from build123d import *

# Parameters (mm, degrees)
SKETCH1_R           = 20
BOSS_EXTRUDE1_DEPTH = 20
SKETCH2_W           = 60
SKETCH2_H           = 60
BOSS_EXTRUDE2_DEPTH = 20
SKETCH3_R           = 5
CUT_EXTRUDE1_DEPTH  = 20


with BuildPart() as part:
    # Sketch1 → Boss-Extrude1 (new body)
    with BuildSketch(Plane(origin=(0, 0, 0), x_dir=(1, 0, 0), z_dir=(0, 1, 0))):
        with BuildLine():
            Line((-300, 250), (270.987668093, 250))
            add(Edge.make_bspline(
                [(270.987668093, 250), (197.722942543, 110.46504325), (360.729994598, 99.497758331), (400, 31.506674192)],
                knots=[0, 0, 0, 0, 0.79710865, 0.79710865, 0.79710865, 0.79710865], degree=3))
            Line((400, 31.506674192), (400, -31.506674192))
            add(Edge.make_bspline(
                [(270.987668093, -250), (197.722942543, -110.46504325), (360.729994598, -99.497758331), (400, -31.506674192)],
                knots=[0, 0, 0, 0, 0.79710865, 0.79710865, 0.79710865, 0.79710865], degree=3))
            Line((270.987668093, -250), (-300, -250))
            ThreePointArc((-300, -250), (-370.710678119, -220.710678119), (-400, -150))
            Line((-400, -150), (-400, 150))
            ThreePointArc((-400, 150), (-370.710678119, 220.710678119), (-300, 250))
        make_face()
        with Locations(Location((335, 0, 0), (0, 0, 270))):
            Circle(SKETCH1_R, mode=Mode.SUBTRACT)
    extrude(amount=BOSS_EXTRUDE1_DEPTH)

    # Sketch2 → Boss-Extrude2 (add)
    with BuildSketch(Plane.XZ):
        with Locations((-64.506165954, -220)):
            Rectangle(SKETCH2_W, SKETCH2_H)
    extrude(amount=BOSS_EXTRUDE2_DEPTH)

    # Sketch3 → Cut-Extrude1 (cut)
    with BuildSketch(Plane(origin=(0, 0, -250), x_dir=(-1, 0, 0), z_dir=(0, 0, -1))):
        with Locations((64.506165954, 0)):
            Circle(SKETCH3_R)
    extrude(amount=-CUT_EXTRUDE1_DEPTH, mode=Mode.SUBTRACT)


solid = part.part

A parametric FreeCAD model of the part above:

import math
import FreeCAD as App
import Part
import Sketcher

doc = App.newDocument("Part")
body = doc.addObject("PartDesign::Body", "Body")

# Sketch on XZ plane
sketch1 = body.newObject("Sketcher::SketchObject", "Sketch")
sketch1.AttachmentSupport = (doc.getObject("XZ_Plane"), [""])
sketch1.MapMode = "FlatFace"
sketch1.addGeometry([
    Part.LineSegment(App.Vector(270.987668, -250, 0), App.Vector(-300, -250, 0)),  # 0
    Part.ArcOfCircle(Part.Circle(App.Vector(-300, -150, 0), App.Vector(0, 0, 1), 100), math.radians(180), math.radians(270)),  # 1
    Part.LineSegment(App.Vector(-400, -150, 0), App.Vector(-400, 150, 0)),  # 2
    Part.ArcOfCircle(Part.Circle(App.Vector(-300, 150, 0), App.Vector(0, 0, 1), 100), math.radians(90), math.radians(180)),  # 3
    Part.LineSegment(App.Vector(-300, 250, 0), App.Vector(270.987668, 250, 0)),  # 4
    Part.BSplineCurve([App.Vector(270.987668, 250, 0), App.Vector(197.722943, 110.465043, 0), App.Vector(360.729995, 99.497758, 0), App.Vector(400, 31.506674, 0)], [4, 4], [0, 0.79710865], False, 3, [1, 1, 1, 1], False),  # 5
    Part.LineSegment(App.Vector(400, 31.506674, 0), App.Vector(400, -31.506674, 0)),  # 6
    Part.BSplineCurve([App.Vector(270.987668, -250, 0), App.Vector(197.722943, -110.465043, 0), App.Vector(360.729995, -99.497758, 0), App.Vector(400, -31.506674, 0)], [4, 4], [0, 0.79710865], False, 3, [1, 1, 1, 1], False),  # 7
    Part.Circle(App.Vector(335, 0, 0), App.Vector(0, 0, 1), 20),  # 8
], False)
sketch1.addConstraint([
    Sketcher.Constraint("Block", 5),
    Sketcher.Constraint("Block", 7),
    Sketcher.Constraint("Tangent", 0, 2, 1, 2),
    Sketcher.Constraint("Tangent", 1, 1, 2, 1),
    Sketcher.Constraint("Tangent", 2, 2, 3, 2),
    Sketcher.Constraint("Tangent", 3, 1, 4, 1),
    Sketcher.Constraint("Coincident", 4, 2, 5, 1),
    Sketcher.Constraint("Coincident", 5, 2, 6, 1),
    Sketcher.Constraint("Coincident", 6, 2, 7, 2),
    Sketcher.Constraint("Coincident", 7, 1, 0, 1),
    Sketcher.Constraint("Horizontal", 0),
    Sketcher.Constraint("Vertical", 2),
    Sketcher.Constraint("Horizontal", 4),
    Sketcher.Constraint("Equal", 1, 3),
    Sketcher.Constraint("PointOnObject", 8, 3, -1),
    Sketcher.Constraint("Diameter", 8, 40.0),
    Sketcher.Constraint("Radius", 1, 100.0),
    Sketcher.Constraint("DistanceX", 1, 3, -1, 1, 300.0),
    Sketcher.Constraint("DistanceX", -1, 1, 8, 3, 335.0),
])
pad1 = body.newObject("PartDesign::Pad", "Pad")
pad1.Profile = sketch1
pad1.Length = 20
pad1.Reversed = True

# Sketch on XZ plane
sketch2 = body.newObject("Sketcher::SketchObject", "Sketch001")
sketch2.AttachmentSupport = (doc.getObject("XZ_Plane"), [""])
sketch2.MapMode = "FlatFace"
sketch2.addGeometry([
    Part.LineSegment(App.Vector(-95, -190, 0), App.Vector(-95, -250, 0)),
    Part.LineSegment(App.Vector(-95, -250, 0), App.Vector(-35, -250, 0)),
    Part.LineSegment(App.Vector(-35, -250, 0), App.Vector(-35, -190, 0)),
    Part.LineSegment(App.Vector(-35, -190, 0), App.Vector(-95, -190, 0)),
], False)
sketch2.addConstraint([
    Sketcher.Constraint("Coincident", 0, 2, 1, 1),
    Sketcher.Constraint("Coincident", 1, 2, 2, 1),
    Sketcher.Constraint("Coincident", 2, 2, 3, 1),
    Sketcher.Constraint("Coincident", 3, 2, 0, 1),
    Sketcher.Constraint("Vertical", 0),
    Sketcher.Constraint("Horizontal", 1),
    Sketcher.Constraint("Vertical", 2),
    Sketcher.Constraint("Horizontal", 3),
    Sketcher.Constraint("Equal", 3, 0),
    Sketcher.Constraint("DistanceX", 1, 1, 1, 2, 60.0),
    Sketcher.Constraint("DistanceY", 0, 2, -1, 1, 250.0),
    Sketcher.Constraint("DistanceX", 0, 2, -1, 1, 94.506166),
])
pad2 = body.newObject("PartDesign::Pad", "Pad001")
pad2.Profile = sketch2
pad2.Length = 20

# Sketch on XY plane
sketch3 = body.newObject("Sketcher::SketchObject", "Sketch002")
sketch3.AttachmentSupport = (doc.getObject("XY_Plane"), [""])
sketch3.MapMode = "FlatFace"
sketch3.AttachmentOffset = App.Placement(App.Vector(0, 0, -250), App.Rotation())
sketch3.addGeometry(Part.Circle(App.Vector(-65, 0, 0), App.Vector(0, 0, 1), 5), False)
sketch3.addConstraint([
    Sketcher.Constraint("PointOnObject", 0, 3, -1),
    Sketcher.Constraint("Diameter", 0, 10.0),
    Sketcher.Constraint("DistanceX", 0, 3, -1, 1, 64.506166),
])
pocket1 = body.newObject("PartDesign::Pocket", "Pocket")
pocket1.Profile = sketch3
pocket1.Length = 20
pocket1.Reversed = True

doc.recompute()
